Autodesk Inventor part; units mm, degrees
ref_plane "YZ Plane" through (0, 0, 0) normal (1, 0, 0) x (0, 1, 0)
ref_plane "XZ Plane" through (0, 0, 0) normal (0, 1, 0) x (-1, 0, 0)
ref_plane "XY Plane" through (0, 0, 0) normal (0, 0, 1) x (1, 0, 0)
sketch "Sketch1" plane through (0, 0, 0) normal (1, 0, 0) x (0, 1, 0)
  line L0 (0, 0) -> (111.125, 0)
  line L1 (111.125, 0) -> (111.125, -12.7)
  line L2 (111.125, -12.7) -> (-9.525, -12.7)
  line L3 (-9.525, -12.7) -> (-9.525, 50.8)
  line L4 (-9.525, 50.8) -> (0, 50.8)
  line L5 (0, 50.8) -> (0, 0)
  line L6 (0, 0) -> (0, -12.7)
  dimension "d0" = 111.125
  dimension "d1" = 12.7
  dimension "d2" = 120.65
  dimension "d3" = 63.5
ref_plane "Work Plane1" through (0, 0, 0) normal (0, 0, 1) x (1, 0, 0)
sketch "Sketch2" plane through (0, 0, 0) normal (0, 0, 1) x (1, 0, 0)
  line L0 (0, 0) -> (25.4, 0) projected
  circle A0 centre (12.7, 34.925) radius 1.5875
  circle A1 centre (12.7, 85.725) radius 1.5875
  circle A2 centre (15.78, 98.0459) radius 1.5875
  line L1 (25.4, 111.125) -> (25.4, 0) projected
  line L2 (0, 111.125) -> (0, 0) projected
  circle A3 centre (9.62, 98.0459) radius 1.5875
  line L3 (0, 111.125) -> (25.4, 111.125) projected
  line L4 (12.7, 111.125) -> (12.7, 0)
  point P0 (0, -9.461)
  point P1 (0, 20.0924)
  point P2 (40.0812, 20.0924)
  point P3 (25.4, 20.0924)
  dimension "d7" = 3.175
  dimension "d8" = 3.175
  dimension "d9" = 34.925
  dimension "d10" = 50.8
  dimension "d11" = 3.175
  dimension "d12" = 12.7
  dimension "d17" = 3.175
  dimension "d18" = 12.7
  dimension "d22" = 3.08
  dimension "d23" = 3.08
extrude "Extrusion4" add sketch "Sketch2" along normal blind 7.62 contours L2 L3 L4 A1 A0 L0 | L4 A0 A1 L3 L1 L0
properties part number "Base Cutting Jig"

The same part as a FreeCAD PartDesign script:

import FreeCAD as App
import Part
import Sketcher
from FreeCAD import Vector
Q = App.Units.Quantity


def add_polygon(sketch, points):
    """Adds a closed chain of lines whose ends are joined by coincident constraints."""
    first, n = sketch.GeometryCount, len(points)
    for a, b in zip(points, points[1:] + points[:1]):
        sketch.addGeometry(Part.LineSegment(App.Vector(*a, 0), App.Vector(*b, 0)), False)
    for i in range(n):
        sketch.addConstraint(Sketcher.Constraint("Coincident", first + i, 2, first + (i + 1) % n, 1))

doc = App.newDocument("Part")
body = doc.addObject("PartDesign::Body", "Body")

sketch1 = doc.addObject("Sketcher::SketchObject", "Sketch")
body.addObject(sketch1)
sketch1.AttachmentSupport = (doc.XY_Plane, [""])
sketch1.MapMode = "FlatFace"
add_polygon(sketch1, [(0, 111.125), (0, 0), (25.4, 0), (25.4, 111.125)])
sketch1.addGeometry(Part.Circle(Vector(12.7, 85.725, 0), Vector(0, 0, 1), 1.5875), False)
sketch1.addGeometry(Part.Circle(Vector(12.7, 34.925, 0), Vector(0, 0, 1), 1.5875), False)
sketch1.addGeometry(Part.Circle(Vector(9.62, 98.0459, 0), Vector(0, 0, 1), 1.5875), False)
sketch1.addGeometry(Part.Circle(Vector(15.78, 98.0459, 0), Vector(0, 0, 1), 1.5875), False)
sketch1.addConstraint([
    Sketcher.Constraint("Vertical", 0),
    Sketcher.Constraint("Horizontal", 1),
    Sketcher.Constraint("Vertical", 2),
    Sketcher.Constraint("Horizontal", 3),
    Sketcher.Constraint("Coincident", 0, 2, -1, 1),
    Sketcher.Constraint("Equal", 4, 5),
    Sketcher.Constraint("Equal", 5, 6),
    Sketcher.Constraint("Equal", 6, 7),
    Sketcher.Constraint("Horizontal", 6, 3, 7, 3),
    Sketcher.Constraint("Vertical", 4, 3, 5, 3),
    Sketcher.Constraint("Diameter", 4, Q("0.125 in")),
    Sketcher.Constraint("DistanceY", 5, 3, 4, 3, Q("2 in")),
    Sketcher.Constraint("DistanceX", -1, 1, 4, 3, Q("0.5 in")),
    Sketcher.Constraint("DistanceX", 5, 3, 1, 2, Q("0.5 in")),
    Sketcher.Constraint("DistanceY", -1, 1, 5, 3, Q("1.375 in")),
    Sketcher.Constraint("DistanceY", 4, 3, 2, 2, Q("1 in")),
    Sketcher.Constraint("DistanceX", 6, 3, 4, 3, 3.08),
    Sketcher.Constraint("DistanceX", 4, 3, 7, 3, 3.08),
    Sketcher.Constraint("DistanceY", -1, 1, 6, 3, 98.046),
])
pad1 = doc.addObject("PartDesign::Pad", "Pad")
body.addObject(pad1)
pad1.Profile = sketch1
pad1.Length = Q("0.3 in")

doc.recompute()
